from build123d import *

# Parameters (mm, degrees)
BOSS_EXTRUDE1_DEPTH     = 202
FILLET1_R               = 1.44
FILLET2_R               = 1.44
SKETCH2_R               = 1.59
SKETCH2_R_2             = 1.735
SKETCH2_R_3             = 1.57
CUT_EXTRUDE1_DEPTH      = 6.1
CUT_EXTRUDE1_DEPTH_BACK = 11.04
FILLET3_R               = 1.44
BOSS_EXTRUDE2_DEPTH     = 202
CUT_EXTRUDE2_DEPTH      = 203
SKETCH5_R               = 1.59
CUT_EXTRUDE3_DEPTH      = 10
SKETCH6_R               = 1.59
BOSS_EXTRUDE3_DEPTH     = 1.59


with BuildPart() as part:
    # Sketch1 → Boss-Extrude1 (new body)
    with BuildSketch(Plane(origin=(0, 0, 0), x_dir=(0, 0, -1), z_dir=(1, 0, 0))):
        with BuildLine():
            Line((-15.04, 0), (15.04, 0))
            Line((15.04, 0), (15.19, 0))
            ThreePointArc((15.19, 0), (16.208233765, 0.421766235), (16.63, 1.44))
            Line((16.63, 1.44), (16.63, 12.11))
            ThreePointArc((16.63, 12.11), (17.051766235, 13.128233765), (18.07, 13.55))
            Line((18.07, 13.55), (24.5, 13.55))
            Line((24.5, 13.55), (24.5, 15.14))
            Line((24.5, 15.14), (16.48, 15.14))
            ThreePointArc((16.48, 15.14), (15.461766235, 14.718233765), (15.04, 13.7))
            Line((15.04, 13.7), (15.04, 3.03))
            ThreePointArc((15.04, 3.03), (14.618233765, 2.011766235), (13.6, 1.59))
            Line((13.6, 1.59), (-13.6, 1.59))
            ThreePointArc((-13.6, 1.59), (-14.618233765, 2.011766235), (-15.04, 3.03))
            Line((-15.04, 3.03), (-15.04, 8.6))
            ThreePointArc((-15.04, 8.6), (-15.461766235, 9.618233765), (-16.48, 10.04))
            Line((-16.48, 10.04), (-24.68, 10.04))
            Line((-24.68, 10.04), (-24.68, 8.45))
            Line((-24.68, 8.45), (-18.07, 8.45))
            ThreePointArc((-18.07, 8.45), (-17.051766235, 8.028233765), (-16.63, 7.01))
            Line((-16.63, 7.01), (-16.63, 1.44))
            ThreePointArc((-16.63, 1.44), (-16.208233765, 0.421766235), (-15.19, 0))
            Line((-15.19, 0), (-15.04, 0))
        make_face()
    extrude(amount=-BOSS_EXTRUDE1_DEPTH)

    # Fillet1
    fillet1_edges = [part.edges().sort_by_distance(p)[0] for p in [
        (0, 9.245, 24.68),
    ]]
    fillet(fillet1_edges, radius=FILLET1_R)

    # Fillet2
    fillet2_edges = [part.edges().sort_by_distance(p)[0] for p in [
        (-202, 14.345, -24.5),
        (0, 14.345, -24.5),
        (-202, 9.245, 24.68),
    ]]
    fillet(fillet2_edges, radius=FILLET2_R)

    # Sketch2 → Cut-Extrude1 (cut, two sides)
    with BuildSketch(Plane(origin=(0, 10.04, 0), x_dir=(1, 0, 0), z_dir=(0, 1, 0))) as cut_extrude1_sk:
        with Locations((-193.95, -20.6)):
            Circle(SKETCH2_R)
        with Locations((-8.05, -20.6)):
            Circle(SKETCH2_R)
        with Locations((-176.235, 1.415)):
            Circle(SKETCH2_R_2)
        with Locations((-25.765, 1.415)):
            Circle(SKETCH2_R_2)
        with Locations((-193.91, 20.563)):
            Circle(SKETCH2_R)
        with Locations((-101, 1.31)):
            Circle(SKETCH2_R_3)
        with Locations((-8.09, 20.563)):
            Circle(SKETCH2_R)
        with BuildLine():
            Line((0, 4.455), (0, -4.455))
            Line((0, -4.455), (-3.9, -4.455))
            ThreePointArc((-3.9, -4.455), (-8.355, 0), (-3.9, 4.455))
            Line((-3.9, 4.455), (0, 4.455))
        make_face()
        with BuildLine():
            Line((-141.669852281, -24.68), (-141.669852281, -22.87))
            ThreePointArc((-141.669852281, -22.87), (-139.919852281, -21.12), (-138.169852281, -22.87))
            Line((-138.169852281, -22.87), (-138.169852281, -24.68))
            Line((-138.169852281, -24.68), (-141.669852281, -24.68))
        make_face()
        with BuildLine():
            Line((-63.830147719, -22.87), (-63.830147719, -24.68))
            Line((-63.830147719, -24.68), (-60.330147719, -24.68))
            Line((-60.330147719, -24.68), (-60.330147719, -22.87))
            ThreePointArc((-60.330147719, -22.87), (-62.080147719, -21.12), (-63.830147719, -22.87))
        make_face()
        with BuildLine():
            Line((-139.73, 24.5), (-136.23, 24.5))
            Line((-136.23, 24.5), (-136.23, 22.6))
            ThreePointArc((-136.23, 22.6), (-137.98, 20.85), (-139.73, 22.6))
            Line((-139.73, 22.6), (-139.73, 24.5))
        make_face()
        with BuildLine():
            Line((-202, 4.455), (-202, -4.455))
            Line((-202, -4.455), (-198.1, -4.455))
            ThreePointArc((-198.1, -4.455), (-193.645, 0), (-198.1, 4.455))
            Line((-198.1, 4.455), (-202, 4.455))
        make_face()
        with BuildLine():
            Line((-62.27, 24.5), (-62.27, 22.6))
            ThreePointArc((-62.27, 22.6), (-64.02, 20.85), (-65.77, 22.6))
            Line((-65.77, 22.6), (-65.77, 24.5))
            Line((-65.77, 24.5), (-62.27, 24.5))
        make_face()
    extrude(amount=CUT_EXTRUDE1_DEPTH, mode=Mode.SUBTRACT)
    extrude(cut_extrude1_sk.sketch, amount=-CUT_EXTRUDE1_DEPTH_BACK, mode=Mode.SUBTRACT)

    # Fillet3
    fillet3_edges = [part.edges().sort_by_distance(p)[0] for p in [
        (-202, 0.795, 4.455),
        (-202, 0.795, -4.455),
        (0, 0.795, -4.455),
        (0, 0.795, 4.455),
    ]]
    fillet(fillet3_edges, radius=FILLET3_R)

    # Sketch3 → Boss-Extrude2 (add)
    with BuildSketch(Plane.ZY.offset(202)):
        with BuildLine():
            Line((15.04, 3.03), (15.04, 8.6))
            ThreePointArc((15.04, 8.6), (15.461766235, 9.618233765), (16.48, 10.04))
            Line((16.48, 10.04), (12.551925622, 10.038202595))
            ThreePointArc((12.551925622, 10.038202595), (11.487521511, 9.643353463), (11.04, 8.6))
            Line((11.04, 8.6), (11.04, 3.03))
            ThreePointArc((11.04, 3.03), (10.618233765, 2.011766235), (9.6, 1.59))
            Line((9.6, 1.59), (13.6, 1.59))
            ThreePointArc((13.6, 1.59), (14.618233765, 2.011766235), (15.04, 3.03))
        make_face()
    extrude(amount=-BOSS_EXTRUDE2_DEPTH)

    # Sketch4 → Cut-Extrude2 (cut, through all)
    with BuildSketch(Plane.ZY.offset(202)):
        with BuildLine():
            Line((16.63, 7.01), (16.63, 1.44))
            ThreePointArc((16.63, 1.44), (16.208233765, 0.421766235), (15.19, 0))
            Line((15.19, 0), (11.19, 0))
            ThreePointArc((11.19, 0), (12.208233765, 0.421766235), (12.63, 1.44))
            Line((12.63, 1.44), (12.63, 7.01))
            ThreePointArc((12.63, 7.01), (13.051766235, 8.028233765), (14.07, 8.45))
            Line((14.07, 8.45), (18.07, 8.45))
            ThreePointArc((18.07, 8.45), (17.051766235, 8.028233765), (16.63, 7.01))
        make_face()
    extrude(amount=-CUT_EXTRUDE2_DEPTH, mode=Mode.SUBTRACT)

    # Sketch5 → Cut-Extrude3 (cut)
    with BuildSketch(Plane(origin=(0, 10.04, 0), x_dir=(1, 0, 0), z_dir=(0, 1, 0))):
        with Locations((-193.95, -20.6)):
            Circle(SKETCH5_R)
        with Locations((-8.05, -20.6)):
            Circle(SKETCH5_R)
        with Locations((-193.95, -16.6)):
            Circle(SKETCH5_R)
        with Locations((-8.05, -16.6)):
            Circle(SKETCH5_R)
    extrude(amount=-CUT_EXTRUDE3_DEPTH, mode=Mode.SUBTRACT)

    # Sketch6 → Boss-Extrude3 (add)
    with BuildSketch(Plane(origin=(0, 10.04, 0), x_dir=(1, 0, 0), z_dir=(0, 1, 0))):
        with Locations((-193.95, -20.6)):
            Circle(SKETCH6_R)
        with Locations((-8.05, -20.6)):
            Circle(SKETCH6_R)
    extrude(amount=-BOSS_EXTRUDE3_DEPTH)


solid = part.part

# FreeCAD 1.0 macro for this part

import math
import FreeCAD as App
import Part
import Sketcher


def edges_at(feature, points):
    """Names of the edges that pass closest to the given points."""
    edges = feature.Shape.Edges
    near = lambda p: min(range(len(edges)), key=lambda i: edges[i].distToShape(Part.Vertex(*p))[0])
    return sorted({f"Edge{near(p) + 1}" for p in points})

doc = App.newDocument("Part")
body = doc.addObject("PartDesign::Body", "Body")

# Sketch on YZ plane
sketch1 = body.newObject("Sketcher::SketchObject", "Sketch")
sketch1.AttachmentSupport = (doc.getObject("YZ_Plane"), [""])
sketch1.MapMode = "FlatFace"
sketch1.addGeometry([
    Part.ArcOfCircle(Part.Circle(App.Vector(1.44, -15.19, 0), App.Vector(0, 0, 1), 1.44), math.radians(180), math.radians(270)),  # 0
    Part.LineSegment(App.Vector(1.44, -16.63, 0), App.Vector(12.11, -16.63, 0)),  # 1
    Part.ArcOfCircle(Part.Circle(App.Vector(12.11, -18.07, 0), App.Vector(0, 0, 1), 1.44), math.radians(0), math.radians(90)),  # 2
    Part.LineSegment(App.Vector(13.55, -18.07, 0), App.Vector(13.55, -24.5, 0)),  # 3
    Part.LineSegment(App.Vector(13.55, -24.5, 0), App.Vector(15.14, -24.5, 0)),  # 4
    Part.LineSegment(App.Vector(15.14, -24.5, 0), App.Vector(15.14, -16.48, 0)),  # 5
    Part.ArcOfCircle(Part.Circle(App.Vector(13.7, -16.48, 0), App.Vector(0, 0, 1), 1.44), math.radians(0), math.radians(90)),  # 6
    Part.LineSegment(App.Vector(13.7, -15.04, 0), App.Vector(3.03, -15.04, 0)),  # 7
    Part.ArcOfCircle(Part.Circle(App.Vector(3.03, -13.6, 0), App.Vector(0, 0, 1), 1.44), math.radians(180), math.radians(270)),  # 8
    Part.LineSegment(App.Vector(1.59, -13.6, 0), App.Vector(1.59, 13.6, 0)),  # 9
    Part.ArcOfCircle(Part.Circle(App.Vector(3.03, 13.6, 0), App.Vector(0, 0, 1), 1.44), math.radians(90), math.radians(180)),  # 10
    Part.LineSegment(App.Vector(3.03, 15.04, 0), App.Vector(8.6, 15.04, 0)),  # 11
    Part.ArcOfCircle(Part.Circle(App.Vector(8.6, 16.48, 0), App.Vector(0, 0, 1), 1.44), math.radians(-90), math.radians(0)),  # 12
    Part.LineSegment(App.Vector(10.04, 16.48, 0), App.Vector(10.04, 24.68, 0)),  # 13
    Part.LineSegment(App.Vector(10.04, 24.68, 0), App.Vector(8.45, 24.68, 0)),  # 14
    Part.LineSegment(App.Vector(8.45, 24.68, 0), App.Vector(8.45, 18.07, 0)),  # 15
    Part.ArcOfCircle(Part.Circle(App.Vector(7.01, 18.07, 0), App.Vector(0, 0, 1), 1.44), math.radians(-90), math.radians(0)),  # 16
    Part.LineSegment(App.Vector(7.01, 16.63, 0), App.Vector(1.44, 16.63, 0)),  # 17
    Part.ArcOfCircle(Part.Circle(App.Vector(1.44, 15.19, 0), App.Vector(0, 0, 1), 1.44), math.radians(90), math.radians(180)),  # 18
    Part.LineSegment(App.Vector(0, 15.19, 0), App.Vector(0, -15.19, 0)),  # 19
], False)
sketch1.addConstraint([
    Sketcher.Constraint("Tangent", 0, 2, 1, 1),
    Sketcher.Constraint("Tangent", 1, 2, 2, 2),
    Sketcher.Constraint("Tangent", 2, 1, 3, 1),
    Sketcher.Constraint("Coincident", 3, 2, 4, 1),
    Sketcher.Constraint("Coincident", 4, 2, 5, 1),
    Sketcher.Constraint("Tangent", 5, 2, 6, 1),
    Sketcher.Constraint("Tangent", 6, 2, 7, 1),
    Sketcher.Constraint("Tangent", 7, 2, 8, 2),
    Sketcher.Constraint("Tangent", 8, 1, 9, 1),
    Sketcher.Constraint("Tangent", 9, 2, 10, 2),
    Sketcher.Constraint("Tangent", 10, 1, 11, 1),
    Sketcher.Constraint("Tangent", 11, 2, 12, 1),
    Sketcher.Constraint("Tangent", 12, 2, 13, 1),
    Sketcher.Constraint("Coincident", 13, 2, 14, 1),
    Sketcher.Constraint("Coincident", 14, 2, 15, 1),
    Sketcher.Constraint("Tangent", 15, 2, 16, 2),
    Sketcher.Constraint("Tangent", 16, 1, 17, 1),
    Sketcher.Constraint("Tangent", 17, 2, 18, 1),
    Sketcher.Constraint("Tangent", 18, 2, 19, 1),
    Sketcher.Constraint("Tangent", 19, 2, 0, 1),
    Sketcher.Constraint("Horizontal", 1),
    Sketcher.Constraint("Vertical", 3),
    Sketcher.Constraint("Horizontal", 4),
    Sketcher.Constraint("Vertical", 5),
    Sketcher.Constraint("Horizontal", 7),
    Sketcher.Constraint("Vertical", 9),
    Sketcher.Constraint("Horizontal", 11),
    Sketcher.Constraint("Vertical", 13),
    Sketcher.Constraint("Horizontal", 14),
    Sketcher.Constraint("Vertical", 15),
    Sketcher.Constraint("Horizontal", 17),
    Sketcher.Constraint("Vertical", 19),
    Sketcher.Constraint("Equal", 0, 2),
    Sketcher.Constraint("Equal", 2, 6),
    Sketcher.Constraint("Equal", 6, 8),
    Sketcher.Constraint("Equal", 8, 10),
    Sketcher.Constraint("Equal", 10, 12),
    Sketcher.Constraint("Equal", 12, 16),
    Sketcher.Constraint("Equal", 16, 18),
    Sketcher.Constraint("Symmetric", 18, 2, 19, 2, -1, 1),
    Sketcher.Constraint("Equal", 1, 7),
    Sketcher.Constraint("Equal", 4, 14),
    Sketcher.Constraint("Radius", 0, 1.44),
    Sketcher.Constraint("DistanceY", 9, 1, 9, 2, 27.2),
    Sketcher.Constraint("DistanceY", 13, 1, 13, 2, 8.2),
    Sketcher.Constraint("DistanceX", 1, 1, 1, 2, 10.67),
    Sketcher.Constraint("DistanceX", 4, 1, 4, 2, 1.59),
    Sketcher.Constraint("DistanceX", 11, 1, 11, 2, 5.57),
    Sketcher.Constraint("DistanceY", 3, 2, 3, 1, 6.43),
    Sketcher.Constraint("DistanceY", 5, 1, 5, 2, 8.02),
    Sketcher.Constraint("DistanceY", 15, 2, 15, 1, 6.61),
])
pad1 = body.newObject("PartDesign::Pad", "Pad")
pad1.Profile = sketch1
pad1.Length = 202
pad1.Reversed = True
doc.recompute()

fillet = body.newObject("PartDesign::Fillet", "Fillet")
fillet.Base = (pad1, edges_at(pad1, [(0, 9.245, 24.68)]))
fillet.Radius = 1.44
doc.recompute()

fillet2 = body.newObject("PartDesign::Fillet", "Fillet001")
fillet2.Base = (fillet, edges_at(fillet, [(-202, 14.345, -24.5), (0, 14.345, -24.5), (-202, 9.245, 24.68)]))
fillet2.Radius = 1.44

# Sketch on XZ plane
sketch2 = body.newObject("Sketcher::SketchObject", "Sketch001")
sketch2.AttachmentSupport = (doc.getObject("XZ_Plane"), [""])
sketch2.MapMode = "FlatFace"
sketch2.AttachmentOffset = App.Placement(App.Vector(0, 0, -10.04), App.Rotation())
sketch2.addGeometry([
    Part.Circle(App.Vector(-193.95, 20.6, 0), App.Vector(0, 0, 1), 1.59),  # 0
    Part.Circle(App.Vector(-8.05, 20.6, 0), App.Vector(0, 0, 1), 1.59),  # 1
    Part.Circle(App.Vector(-176.235, -1.415, 0), App.Vector(0, 0, 1), 1.735),  # 2
    Part.Circle(App.Vector(-25.765, -1.415, 0), App.Vector(0, 0, 1), 1.735),  # 3
    Part.Circle(App.Vector(-193.91, -20.563, 0), App.Vector(0, 0, 1), 1.59),  # 4
    Part.Circle(App.Vector(-101, -1.31, 0), App.Vector(0, 0, 1), 1.57),  # 5
    Part.Circle(App.Vector(-8.09, -20.563, 0), App.Vector(0, 0, 1), 1.59),  # 6
    Part.LineSegment(App.Vector(0, 4.455, 0), App.Vector(0, -4.455, 0)),  # 7
    Part.LineSegment(App.Vector(0, -4.455, 0), App.Vector(-3.9, -4.455, 0)),  # 8
    Part.ArcOfCircle(Part.Circle(App.Vector(-3.9, 0, 0), App.Vector(0, 0, 1), 4.455), math.radians(90), math.radians(270)),  # 9
    Part.LineSegment(App.Vector(-3.9, 4.455, 0), App.Vector(0, 4.455, 0)),  # 10
    Part.LineSegment(App.Vector(-141.669852, 22.87, 0), App.Vector(-141.669852, 24.68, 0)),  # 11
    Part.LineSegment(App.Vector(-141.669852, 24.68, 0), App.Vector(-138.169852, 24.68, 0)),  # 12
    Part.LineSegment(App.Vector(-138.169852, 24.68, 0), App.Vector(-138.169852, 22.87, 0)),  # 13
    Part.ArcOfCircle(Part.Circle(App.Vector(-139.919852, 22.87, 0), App.Vector(0, 0, 1), 1.75), math.radians(180), math.radians(360)),  # 14
    Part.LineSegment(App.Vector(-63.830148, 22.87, 0), App.Vector(-63.830148, 24.68, 0)),  # 15
    Part.LineSegment(App.Vector(-63.830148, 24.68, 0), App.Vector(-60.330148, 24.68, 0)),  # 16
    Part.LineSegment(App.Vector(-60.330148, 24.68, 0), App.Vector(-60.330148, 22.87, 0)),  # 17
    Part.ArcOfCircle(Part.Circle(App.Vector(-62.080148, 22.87, 0), App.Vector(0, 0, 1), 1.75), math.radians(180), math.radians(360)),  # 18
    Part.LineSegment(App.Vector(-136.23, -24.5, 0), App.Vector(-139.73, -24.5, 0)),  # 19
    Part.LineSegment(App.Vector(-139.73, -24.5, 0), App.Vector(-139.73, -22.6, 0)),  # 20
    Part.ArcOfCircle(Part.Circle(App.Vector(-137.98, -22.6, 0), App.Vector(0, 0, 1), 1.75), math.radians(0), math.radians(180)),  # 21
    Part.LineSegment(App.Vector(-136.23, -22.6, 0), App.Vector(-136.23, -24.5, 0)),  # 22
    Part.LineSegment(App.Vector(-202, -4.455, 0), App.Vector(-202, 4.455, 0)),  # 23
    Part.LineSegment(App.Vector(-202, 4.455, 0), App.Vector(-198.1, 4.455, 0)),  # 24
    Part.ArcOfCircle(Part.Circle(App.Vector(-198.1, 0, 0), App.Vector(0, 0, 1), 4.455), math.radians(-90), math.radians(90)),  # 25
    Part.LineSegment(App.Vector(-198.1, -4.455, 0), App.Vector(-202, -4.455, 0)),  # 26
    Part.LineSegment(App.Vector(-62.27, -22.6, 0), App.Vector(-62.27, -24.5, 0)),  # 27
    Part.LineSegment(App.Vector(-62.27, -24.5, 0), App.Vector(-65.77, -24.5, 0)),  # 28
    Part.LineSegment(App.Vector(-65.77, -24.5, 0), App.Vector(-65.77, -22.6, 0)),  # 29
    Part.ArcOfCircle(Part.Circle(App.Vector(-64.02, -22.6, 0), App.Vector(0, 0, 1), 1.75), math.radians(0), math.radians(180)),  # 30
], False)
sketch2.addConstraint([
    Sketcher.Constraint("Coincident", 7, 2, 8, 1),
    Sketcher.Constraint("Tangent", 8, 2, 9, 2),
    Sketcher.Constraint("Tangent", 9, 1, 10, 1),
    Sketcher.Constraint("Coincident", 10, 2, 7, 1),
    Sketcher.Constraint("Coincident", 11, 2, 12, 1),
    Sketcher.Constraint("Coincident", 12, 2, 13, 1),
    Sketcher.Constraint("Tangent", 13, 2, 14, 2),
    Sketcher.Constraint("Tangent", 14, 1, 11, 1),
    Sketcher.Constraint("Coincident", 15, 2, 16, 1),
    Sketcher.Constraint("Coincident", 16, 2, 17, 1),
    Sketcher.Constraint("Tangent", 17, 2, 18, 2),
    Sketcher.Constraint("Tangent", 18, 1, 15, 1),
    Sketcher.Constraint("Coincident", 19, 2, 20, 1),
    Sketcher.Constraint("Tangent", 20, 2, 21, 2),
    Sketcher.Constraint("Tangent", 21, 1, 22, 1),
    Sketcher.Constraint("Coincident", 22, 2, 19, 1),
    Sketcher.Constraint("Coincident", 23, 2, 24, 1),
    Sketcher.Constraint("Tangent", 24, 2, 25, 2),
    Sketcher.Constraint("Tangent", 25, 1, 26, 1),
    Sketcher.Constraint("Coincident", 26, 2, 23, 1),
    Sketcher.Constraint("Coincident", 27, 2, 28, 1),
    Sketcher.Constraint("Coincident", 28, 2, 29, 1),
    Sketcher.Constraint("Tangent", 29, 2, 30, 2),
    Sketcher.Constraint("Tangent", 30, 1, 27, 1),
    Sketcher.Constraint("Vertical", 7),
    Sketcher.Constraint("Horizontal", 8),
    Sketcher.Constraint("Horizontal", 10),
    Sketcher.Constraint("Vertical", 11),
    Sketcher.Constraint("Horizontal", 12),
    Sketcher.Constraint("Vertical", 13),
    Sketcher.Constraint("Vertical", 15),
    Sketcher.Constraint("Horizontal", 16),
    Sketcher.Constraint("Vertical", 17),
    Sketcher.Constraint("Horizontal", 19),
    Sketcher.Constraint("Vertical", 20),
    Sketcher.Constraint("Vertical", 22),
    Sketcher.Constraint("Vertical", 23),
    Sketcher.Constraint("Horizontal", 24),
    Sketcher.Constraint("Horizontal", 26),
    Sketcher.Constraint("Vertical", 27),
    Sketcher.Constraint("Horizontal", 28),
    Sketcher.Constraint("Vertical", 29),
    Sketcher.Constraint("Equal", 0, 1),
    Sketcher.Constraint("Equal", 2, 3),
    Sketcher.Constraint("Equal", 1, 4),
    Sketcher.Constraint("Equal", 4, 6),
    Sketcher.Constraint("Equal", 14, 18),
    Sketcher.Constraint("Equal", 18, 21),
    Sketcher.Constraint("Equal", 9, 25),
    Sketcher.Constraint("Equal", 21, 30),
    Sketcher.Constraint("Symmetric", 7, 2, 10, 2, -1, 1),
    Sketcher.Constraint("PointOnObject", 25, 3, -1),
    Sketcher.Constraint("Horizontal", 0, 3, 1, 3),
    Sketcher.Constraint("Horizontal", 2, 3, 3, 3),
    Sketcher.Constraint("Horizontal", 4, 3, 6, 3),
    Sketcher.Constraint("Horizontal", 14, 3, 18, 3),
    Sketcher.Constraint("Horizontal", 21, 3, 30, 3),
    Sketcher.Constraint("Horizontal", 12, 2, 15, 2),
    Sketcher.Constraint("Horizontal", 22, 2, 27, 2),
    Sketcher.Constraint("Equal", 10, 24),
    Sketcher.Constraint("Diameter", 0, 3.18),
    Sketcher.Constraint("Diameter", 2, 3.47),
    Sketcher.Constraint("Diameter", 5, 3.14),
    Sketcher.Constraint("Radius", 14, 1.75),
    Sketcher.Constraint("DistanceX", 8, 2, 8, 1, 3.9),
    Sketcher.Constraint("DistanceY", 20, 1, 20, 2, 1.9),
    Sketcher.Constraint("DistanceX", 5, 3, -1, 1, 101.0),
    Sketcher.Constraint("DistanceX", 23, 2, -1, 1, 202.0),
    Sketcher.Constraint("Radius", 9, 4.455),
    Sketcher.Constraint("DistanceY", 11, 1, 11, 2, 1.81),
    Sketcher.Constraint("DistanceY", -1, 1, 0, 3, 20.6),
    Sketcher.Constraint("DistanceY", 21, 3, -1, 1, 22.6),
    Sketcher.Constraint("DistanceX", 0, 3, 1, 3, 185.9),
    Sketcher.Constraint("DistanceX", 0, 3, -1, 1, 193.95),
    Sketcher.Constraint("DistanceX", 4, 3, -1, 1, 193.91),
    Sketcher.Constraint("DistanceY", 5, 3, -1, 1, 1.31),
    Sketcher.Constraint("DistanceX", 6, 3, -1, 1, 8.09),
    Sketcher.Constraint("DistanceY", -1, 1, 14, 3, 22.87),
    Sketcher.Constraint("DistanceX", 21, 3, -1, 1, 137.98),
    Sketcher.Constraint("DistanceX", 30, 3, -1, 1, 64.02),
    Sketcher.Constraint("DistanceX", 2, 3, 3, 3, 150.47),
    Sketcher.Constraint("DistanceY", 7, 2, 3, 3, 3.04),
    Sketcher.Constraint("DistanceX", 2, 3, -1, 1, 176.235),
    Sketcher.Constraint("DistanceY", 4, 3, -1, 1, 20.563),
    Sketcher.Constraint("DistanceX", 14, 3, -1, 1, 139.919852),
    Sketcher.Constraint("DistanceX", 18, 3, -1, 1, 62.080148),
])
pocket1 = body.newObject("PartDesign::Pocket", "Pocket")
pocket1.Profile = sketch2
pocket1.Type = "ThroughAll"
pocket1.Midplane = True
doc.recompute()

fillet3 = body.newObject("PartDesign::Fillet", "Fillet002")
fillet3.Base = (pocket1, edges_at(pocket1, [
    (-202, 0.795, 4.455),
    (-202, 0.795, -4.455),
    (0, 0.795, -4.455),
    (0, 0.795, 4.455),
]))
fillet3.Radius = 1.44

# Sketch on YZ plane
sketch3 = body.newObject("Sketcher::SketchObject", "Sketch002")
sketch3.AttachmentSupport = (doc.getObject("YZ_Plane"), [""])
sketch3.MapMode = "FlatFace"
sketch3.AttachmentOffset = App.Placement(App.Vector(0, 0, -202), App.Rotation())
sketch3.addGeometry([
    Part.LineSegment(App.Vector(3.03, 15.04, 0), App.Vector(8.6, 15.04, 0)),  # 0
    Part.ArcOfCircle(Part.Circle(App.Vector(8.6, 16.48, 0), App.Vector(0, 0, 1), 1.44), math.radians(-90), math.radians(0)),  # 1
    Part.LineSegment(App.Vector(10.04, 16.48, 0), App.Vector(10.038203, 12.551926, 0)),  # 2
    Part.ArcOfCircle(Part.Circle(App.Vector(8.6, 12.48, 0), App.Vector(0, 0, 1), 1.44), math.radians(-90), math.radians(2.863021)),  # 3
    Part.LineSegment(App.Vector(8.6, 11.04, 0), App.Vector(3.03, 11.04, 0)),  # 4
    Part.ArcOfCircle(Part.Circle(App.Vector(3.03, 9.6, 0), App.Vector(0, 0, 1), 1.44), math.radians(90), math.radians(180)),  # 5
    Part.LineSegment(App.Vector(1.59, 9.6, 0), App.Vector(1.59, 13.6, 0)),  # 6
    Part.ArcOfCircle(Part.Circle(App.Vector(3.03, 13.6, 0), App.Vector(0, 0, 1), 1.44), math.radians(90), math.radians(180)),  # 7
], False)
sketch3.addConstraint([
    Sketcher.Constraint("Tangent", 0, 2, 1, 1),
    Sketcher.Constraint("Coincident", 1, 2, 2, 1),
    Sketcher.Constraint("Coincident", 2, 2, 3, 2),
    Sketcher.Constraint("Tangent", 3, 1, 4, 1),
    Sketcher.Constraint("Tangent", 4, 2, 5, 1),
    Sketcher.Constraint("Tangent", 5, 2, 6, 1),
    Sketcher.Constraint("Tangent", 6, 2, 7, 2),
    Sketcher.Constraint("Tangent", 7, 1, 0, 1),
    Sketcher.Constraint("Horizontal", 0),
    Sketcher.Constraint("Horizontal", 4),
    Sketcher.Constraint("Vertical", 6),
    Sketcher.Constraint("Equal", 1, 3),
    Sketcher.Constraint("Equal", 3, 5),
    Sketcher.Constraint("Equal", 5, 7),
    Sketcher.Constraint("Vertical", 1, 3, 3, 3),
    Sketcher.Constraint("DistanceY", 6, 1, 6, 2, 4.0),
    Sketcher.Constraint("Radius", 1, 1.44),
    Sketcher.Constraint("DistanceY", 3, 3, 1, 2, 4.0),
    Sketcher.Constraint("DistanceX", 0, 1, 0, 2, 5.57),
    Sketcher.Constraint("DistanceX", -1, 1, 1, 3, 8.6),
    Sketcher.Constraint("DistanceY", -1, 1, 5, 3, 9.6),
    Sketcher.Constraint("Distance", 2, 3.928075),
])
pad2 = body.newObject("PartDesign::Pad", "Pad001")
pad2.Profile = sketch3
pad2.Length = 202

# Sketch on YZ plane
sketch4 = body.newObject("Sketcher::SketchObject", "Sketch003")
sketch4.AttachmentSupport = (doc.getObject("YZ_Plane"), [""])
sketch4.MapMode = "FlatFace"
sketch4.AttachmentOffset = App.Placement(App.Vector(0, 0, -202), App.Rotation())
sketch4.addGeometry([
    Part.LineSegment(App.Vector(1.44, 16.63, 0), App.Vector(7.01, 16.63, 0)),  # 0
    Part.ArcOfCircle(Part.Circle(App.Vector(7.01, 18.07, 0), App.Vector(0, 0, 1), 1.44), math.radians(-90), math.radians(0)),  # 1
    Part.LineSegment(App.Vector(8.45, 18.07, 0), App.Vector(8.45, 14.07, 0)),  # 2
    Part.ArcOfCircle(Part.Circle(App.Vector(7.01, 14.07, 0), App.Vector(0, 0, 1), 1.44), math.radians(-90), math.radians(0)),  # 3
    Part.LineSegment(App.Vector(7.01, 12.63, 0), App.Vector(1.44, 12.63, 0)),  # 4
    Part.ArcOfCircle(Part.Circle(App.Vector(1.44, 11.19, 0), App.Vector(0, 0, 1), 1.44), math.radians(90), math.radians(180)),  # 5
    Part.LineSegment(App.Vector(0, 11.19, 0), App.Vector(0, 15.19, 0)),  # 6
    Part.ArcOfCircle(Part.Circle(App.Vector(1.44, 15.19, 0), App.Vector(0, 0, 1), 1.44), math.radians(90), math.radians(180)),  # 7
], False)
sketch4.addConstraint([
    Sketcher.Constraint("Tangent", 0, 2, 1, 1),
    Sketcher.Constraint("Tangent", 1, 2, 2, 1),
    Sketcher.Constraint("Tangent", 2, 2, 3, 2),
    Sketcher.Constraint("Tangent", 3, 1, 4, 1),
    Sketcher.Constraint("Tangent", 4, 2, 5, 1),
    Sketcher.Constraint("Tangent", 5, 2, 6, 1),
    Sketcher.Constraint("Tangent", 6, 2, 7, 2),
    Sketcher.Constraint("Tangent", 7, 1, 0, 1),
    Sketcher.Constraint("Horizontal", 0),
    Sketcher.Constraint("Vertical", 2),
    Sketcher.Constraint("Horizontal", 4),
    Sketcher.Constraint("Vertical", 6),
    Sketcher.Constraint("Equal", 1, 3),
    Sketcher.Constraint("Equal", 3, 5),
    Sketcher.Constraint("Equal", 5, 7),
    Sketcher.Constraint("PointOnObject", 5, 2, -2),
    Sketcher.Constraint("DistanceY", 2, 2, 2, 1, 4.0),
    Sketcher.Constraint("Radius", 1, 1.44),
    Sketcher.Constraint("DistanceX", 0, 1, 0, 2, 5.57),
    Sketcher.Constraint("DistanceY", -1, 1, 1, 3, 18.07),
])
pocket2 = body.newObject("PartDesign::Pocket", "Pocket001")
pocket2.Profile = sketch4
pocket2.Type = "ThroughAll"
pocket2.Reversed = True

# Sketch on XZ plane
sketch5 = body.newObject("Sketcher::SketchObject", "Sketch004")
sketch5.AttachmentSupport = (doc.getObject("XZ_Plane"), [""])
sketch5.MapMode = "FlatFace"
sketch5.AttachmentOffset = App.Placement(App.Vector(0, 0, -10.04), App.Rotation())
sketch5.addGeometry([
    Part.Circle(App.Vector(-193.95, 20.6, 0), App.Vector(0, 0, 1), 1.59),
    Part.Circle(App.Vector(-8.05, 20.6, 0), App.Vector(0, 0, 1), 1.59),
    Part.Circle(App.Vector(-193.95, 16.6, 0), App.Vector(0, 0, 1), 1.59),
    Part.Circle(App.Vector(-8.05, 16.6, 0), App.Vector(0, 0, 1), 1.59),
], False)
sketch5.addConstraint([
    Sketcher.Constraint("Equal", 0, 1),
    Sketcher.Constraint("Equal", 1, 2),
    Sketcher.Constraint("Equal", 2, 3),
    Sketcher.Constraint("Horizontal", 0, 3, 1, 3),
    Sketcher.Constraint("Horizontal", 2, 3, 3, 3),
    Sketcher.Constraint("Vertical", 0, 3, 2, 3),
    Sketcher.Constraint("Vertical", 1, 3, 3, 3),
    Sketcher.Constraint("Diameter", 0, 3.18),
    Sketcher.Constraint("DistanceY", 2, 3, 0, 3, 4.0),
    Sketcher.Constraint("DistanceY", -1, 1, 0, 3, 20.6),
    Sketcher.Constraint("DistanceX", 0, 3, 1, 3, 185.9),
    Sketcher.Constraint("DistanceX", 0, 3, -1, 1, 193.95),
])
pocket3 = body.newObject("PartDesign::Pocket", "Pocket002")
pocket3.Profile = sketch5
pocket3.Length = 10
pocket3.Reversed = True

# Sketch on XZ plane
sketch6 = body.newObject("Sketcher::SketchObject", "Sketch005")
sketch6.AttachmentSupport = (doc.getObject("XZ_Plane"), [""])
sketch6.MapMode = "FlatFace"
sketch6.AttachmentOffset = App.Placement(App.Vector(0, 0, -10.04), App.Rotation())
sketch6.addGeometry([
    Part.Circle(App.Vector(-193.95, 20.6, 0), App.Vector(0, 0, 1), 1.59),
    Part.Circle(App.Vector(-8.05, 20.6, 0), App.Vector(0, 0, 1), 1.59),
], False)
sketch6.addConstraint([
    Sketcher.Constraint("Equal", 0, 1),
    Sketcher.Constraint("Horizontal", 0, 3, 1, 3),
    Sketcher.Constraint("Diameter", 0, 3.18),
    Sketcher.Constraint("DistanceY", -1, 1, 0, 3, 20.6),
    Sketcher.Constraint("DistanceX", 0, 3, 1, 3, 185.9),
    Sketcher.Constraint("DistanceX", 0, 3, -1, 1, 193.95),
])
pad3 = body.newObject("PartDesign::Pad", "Pad002")
pad3.Profile = sketch6
pad3.Length = 1.59

doc.recompute()
